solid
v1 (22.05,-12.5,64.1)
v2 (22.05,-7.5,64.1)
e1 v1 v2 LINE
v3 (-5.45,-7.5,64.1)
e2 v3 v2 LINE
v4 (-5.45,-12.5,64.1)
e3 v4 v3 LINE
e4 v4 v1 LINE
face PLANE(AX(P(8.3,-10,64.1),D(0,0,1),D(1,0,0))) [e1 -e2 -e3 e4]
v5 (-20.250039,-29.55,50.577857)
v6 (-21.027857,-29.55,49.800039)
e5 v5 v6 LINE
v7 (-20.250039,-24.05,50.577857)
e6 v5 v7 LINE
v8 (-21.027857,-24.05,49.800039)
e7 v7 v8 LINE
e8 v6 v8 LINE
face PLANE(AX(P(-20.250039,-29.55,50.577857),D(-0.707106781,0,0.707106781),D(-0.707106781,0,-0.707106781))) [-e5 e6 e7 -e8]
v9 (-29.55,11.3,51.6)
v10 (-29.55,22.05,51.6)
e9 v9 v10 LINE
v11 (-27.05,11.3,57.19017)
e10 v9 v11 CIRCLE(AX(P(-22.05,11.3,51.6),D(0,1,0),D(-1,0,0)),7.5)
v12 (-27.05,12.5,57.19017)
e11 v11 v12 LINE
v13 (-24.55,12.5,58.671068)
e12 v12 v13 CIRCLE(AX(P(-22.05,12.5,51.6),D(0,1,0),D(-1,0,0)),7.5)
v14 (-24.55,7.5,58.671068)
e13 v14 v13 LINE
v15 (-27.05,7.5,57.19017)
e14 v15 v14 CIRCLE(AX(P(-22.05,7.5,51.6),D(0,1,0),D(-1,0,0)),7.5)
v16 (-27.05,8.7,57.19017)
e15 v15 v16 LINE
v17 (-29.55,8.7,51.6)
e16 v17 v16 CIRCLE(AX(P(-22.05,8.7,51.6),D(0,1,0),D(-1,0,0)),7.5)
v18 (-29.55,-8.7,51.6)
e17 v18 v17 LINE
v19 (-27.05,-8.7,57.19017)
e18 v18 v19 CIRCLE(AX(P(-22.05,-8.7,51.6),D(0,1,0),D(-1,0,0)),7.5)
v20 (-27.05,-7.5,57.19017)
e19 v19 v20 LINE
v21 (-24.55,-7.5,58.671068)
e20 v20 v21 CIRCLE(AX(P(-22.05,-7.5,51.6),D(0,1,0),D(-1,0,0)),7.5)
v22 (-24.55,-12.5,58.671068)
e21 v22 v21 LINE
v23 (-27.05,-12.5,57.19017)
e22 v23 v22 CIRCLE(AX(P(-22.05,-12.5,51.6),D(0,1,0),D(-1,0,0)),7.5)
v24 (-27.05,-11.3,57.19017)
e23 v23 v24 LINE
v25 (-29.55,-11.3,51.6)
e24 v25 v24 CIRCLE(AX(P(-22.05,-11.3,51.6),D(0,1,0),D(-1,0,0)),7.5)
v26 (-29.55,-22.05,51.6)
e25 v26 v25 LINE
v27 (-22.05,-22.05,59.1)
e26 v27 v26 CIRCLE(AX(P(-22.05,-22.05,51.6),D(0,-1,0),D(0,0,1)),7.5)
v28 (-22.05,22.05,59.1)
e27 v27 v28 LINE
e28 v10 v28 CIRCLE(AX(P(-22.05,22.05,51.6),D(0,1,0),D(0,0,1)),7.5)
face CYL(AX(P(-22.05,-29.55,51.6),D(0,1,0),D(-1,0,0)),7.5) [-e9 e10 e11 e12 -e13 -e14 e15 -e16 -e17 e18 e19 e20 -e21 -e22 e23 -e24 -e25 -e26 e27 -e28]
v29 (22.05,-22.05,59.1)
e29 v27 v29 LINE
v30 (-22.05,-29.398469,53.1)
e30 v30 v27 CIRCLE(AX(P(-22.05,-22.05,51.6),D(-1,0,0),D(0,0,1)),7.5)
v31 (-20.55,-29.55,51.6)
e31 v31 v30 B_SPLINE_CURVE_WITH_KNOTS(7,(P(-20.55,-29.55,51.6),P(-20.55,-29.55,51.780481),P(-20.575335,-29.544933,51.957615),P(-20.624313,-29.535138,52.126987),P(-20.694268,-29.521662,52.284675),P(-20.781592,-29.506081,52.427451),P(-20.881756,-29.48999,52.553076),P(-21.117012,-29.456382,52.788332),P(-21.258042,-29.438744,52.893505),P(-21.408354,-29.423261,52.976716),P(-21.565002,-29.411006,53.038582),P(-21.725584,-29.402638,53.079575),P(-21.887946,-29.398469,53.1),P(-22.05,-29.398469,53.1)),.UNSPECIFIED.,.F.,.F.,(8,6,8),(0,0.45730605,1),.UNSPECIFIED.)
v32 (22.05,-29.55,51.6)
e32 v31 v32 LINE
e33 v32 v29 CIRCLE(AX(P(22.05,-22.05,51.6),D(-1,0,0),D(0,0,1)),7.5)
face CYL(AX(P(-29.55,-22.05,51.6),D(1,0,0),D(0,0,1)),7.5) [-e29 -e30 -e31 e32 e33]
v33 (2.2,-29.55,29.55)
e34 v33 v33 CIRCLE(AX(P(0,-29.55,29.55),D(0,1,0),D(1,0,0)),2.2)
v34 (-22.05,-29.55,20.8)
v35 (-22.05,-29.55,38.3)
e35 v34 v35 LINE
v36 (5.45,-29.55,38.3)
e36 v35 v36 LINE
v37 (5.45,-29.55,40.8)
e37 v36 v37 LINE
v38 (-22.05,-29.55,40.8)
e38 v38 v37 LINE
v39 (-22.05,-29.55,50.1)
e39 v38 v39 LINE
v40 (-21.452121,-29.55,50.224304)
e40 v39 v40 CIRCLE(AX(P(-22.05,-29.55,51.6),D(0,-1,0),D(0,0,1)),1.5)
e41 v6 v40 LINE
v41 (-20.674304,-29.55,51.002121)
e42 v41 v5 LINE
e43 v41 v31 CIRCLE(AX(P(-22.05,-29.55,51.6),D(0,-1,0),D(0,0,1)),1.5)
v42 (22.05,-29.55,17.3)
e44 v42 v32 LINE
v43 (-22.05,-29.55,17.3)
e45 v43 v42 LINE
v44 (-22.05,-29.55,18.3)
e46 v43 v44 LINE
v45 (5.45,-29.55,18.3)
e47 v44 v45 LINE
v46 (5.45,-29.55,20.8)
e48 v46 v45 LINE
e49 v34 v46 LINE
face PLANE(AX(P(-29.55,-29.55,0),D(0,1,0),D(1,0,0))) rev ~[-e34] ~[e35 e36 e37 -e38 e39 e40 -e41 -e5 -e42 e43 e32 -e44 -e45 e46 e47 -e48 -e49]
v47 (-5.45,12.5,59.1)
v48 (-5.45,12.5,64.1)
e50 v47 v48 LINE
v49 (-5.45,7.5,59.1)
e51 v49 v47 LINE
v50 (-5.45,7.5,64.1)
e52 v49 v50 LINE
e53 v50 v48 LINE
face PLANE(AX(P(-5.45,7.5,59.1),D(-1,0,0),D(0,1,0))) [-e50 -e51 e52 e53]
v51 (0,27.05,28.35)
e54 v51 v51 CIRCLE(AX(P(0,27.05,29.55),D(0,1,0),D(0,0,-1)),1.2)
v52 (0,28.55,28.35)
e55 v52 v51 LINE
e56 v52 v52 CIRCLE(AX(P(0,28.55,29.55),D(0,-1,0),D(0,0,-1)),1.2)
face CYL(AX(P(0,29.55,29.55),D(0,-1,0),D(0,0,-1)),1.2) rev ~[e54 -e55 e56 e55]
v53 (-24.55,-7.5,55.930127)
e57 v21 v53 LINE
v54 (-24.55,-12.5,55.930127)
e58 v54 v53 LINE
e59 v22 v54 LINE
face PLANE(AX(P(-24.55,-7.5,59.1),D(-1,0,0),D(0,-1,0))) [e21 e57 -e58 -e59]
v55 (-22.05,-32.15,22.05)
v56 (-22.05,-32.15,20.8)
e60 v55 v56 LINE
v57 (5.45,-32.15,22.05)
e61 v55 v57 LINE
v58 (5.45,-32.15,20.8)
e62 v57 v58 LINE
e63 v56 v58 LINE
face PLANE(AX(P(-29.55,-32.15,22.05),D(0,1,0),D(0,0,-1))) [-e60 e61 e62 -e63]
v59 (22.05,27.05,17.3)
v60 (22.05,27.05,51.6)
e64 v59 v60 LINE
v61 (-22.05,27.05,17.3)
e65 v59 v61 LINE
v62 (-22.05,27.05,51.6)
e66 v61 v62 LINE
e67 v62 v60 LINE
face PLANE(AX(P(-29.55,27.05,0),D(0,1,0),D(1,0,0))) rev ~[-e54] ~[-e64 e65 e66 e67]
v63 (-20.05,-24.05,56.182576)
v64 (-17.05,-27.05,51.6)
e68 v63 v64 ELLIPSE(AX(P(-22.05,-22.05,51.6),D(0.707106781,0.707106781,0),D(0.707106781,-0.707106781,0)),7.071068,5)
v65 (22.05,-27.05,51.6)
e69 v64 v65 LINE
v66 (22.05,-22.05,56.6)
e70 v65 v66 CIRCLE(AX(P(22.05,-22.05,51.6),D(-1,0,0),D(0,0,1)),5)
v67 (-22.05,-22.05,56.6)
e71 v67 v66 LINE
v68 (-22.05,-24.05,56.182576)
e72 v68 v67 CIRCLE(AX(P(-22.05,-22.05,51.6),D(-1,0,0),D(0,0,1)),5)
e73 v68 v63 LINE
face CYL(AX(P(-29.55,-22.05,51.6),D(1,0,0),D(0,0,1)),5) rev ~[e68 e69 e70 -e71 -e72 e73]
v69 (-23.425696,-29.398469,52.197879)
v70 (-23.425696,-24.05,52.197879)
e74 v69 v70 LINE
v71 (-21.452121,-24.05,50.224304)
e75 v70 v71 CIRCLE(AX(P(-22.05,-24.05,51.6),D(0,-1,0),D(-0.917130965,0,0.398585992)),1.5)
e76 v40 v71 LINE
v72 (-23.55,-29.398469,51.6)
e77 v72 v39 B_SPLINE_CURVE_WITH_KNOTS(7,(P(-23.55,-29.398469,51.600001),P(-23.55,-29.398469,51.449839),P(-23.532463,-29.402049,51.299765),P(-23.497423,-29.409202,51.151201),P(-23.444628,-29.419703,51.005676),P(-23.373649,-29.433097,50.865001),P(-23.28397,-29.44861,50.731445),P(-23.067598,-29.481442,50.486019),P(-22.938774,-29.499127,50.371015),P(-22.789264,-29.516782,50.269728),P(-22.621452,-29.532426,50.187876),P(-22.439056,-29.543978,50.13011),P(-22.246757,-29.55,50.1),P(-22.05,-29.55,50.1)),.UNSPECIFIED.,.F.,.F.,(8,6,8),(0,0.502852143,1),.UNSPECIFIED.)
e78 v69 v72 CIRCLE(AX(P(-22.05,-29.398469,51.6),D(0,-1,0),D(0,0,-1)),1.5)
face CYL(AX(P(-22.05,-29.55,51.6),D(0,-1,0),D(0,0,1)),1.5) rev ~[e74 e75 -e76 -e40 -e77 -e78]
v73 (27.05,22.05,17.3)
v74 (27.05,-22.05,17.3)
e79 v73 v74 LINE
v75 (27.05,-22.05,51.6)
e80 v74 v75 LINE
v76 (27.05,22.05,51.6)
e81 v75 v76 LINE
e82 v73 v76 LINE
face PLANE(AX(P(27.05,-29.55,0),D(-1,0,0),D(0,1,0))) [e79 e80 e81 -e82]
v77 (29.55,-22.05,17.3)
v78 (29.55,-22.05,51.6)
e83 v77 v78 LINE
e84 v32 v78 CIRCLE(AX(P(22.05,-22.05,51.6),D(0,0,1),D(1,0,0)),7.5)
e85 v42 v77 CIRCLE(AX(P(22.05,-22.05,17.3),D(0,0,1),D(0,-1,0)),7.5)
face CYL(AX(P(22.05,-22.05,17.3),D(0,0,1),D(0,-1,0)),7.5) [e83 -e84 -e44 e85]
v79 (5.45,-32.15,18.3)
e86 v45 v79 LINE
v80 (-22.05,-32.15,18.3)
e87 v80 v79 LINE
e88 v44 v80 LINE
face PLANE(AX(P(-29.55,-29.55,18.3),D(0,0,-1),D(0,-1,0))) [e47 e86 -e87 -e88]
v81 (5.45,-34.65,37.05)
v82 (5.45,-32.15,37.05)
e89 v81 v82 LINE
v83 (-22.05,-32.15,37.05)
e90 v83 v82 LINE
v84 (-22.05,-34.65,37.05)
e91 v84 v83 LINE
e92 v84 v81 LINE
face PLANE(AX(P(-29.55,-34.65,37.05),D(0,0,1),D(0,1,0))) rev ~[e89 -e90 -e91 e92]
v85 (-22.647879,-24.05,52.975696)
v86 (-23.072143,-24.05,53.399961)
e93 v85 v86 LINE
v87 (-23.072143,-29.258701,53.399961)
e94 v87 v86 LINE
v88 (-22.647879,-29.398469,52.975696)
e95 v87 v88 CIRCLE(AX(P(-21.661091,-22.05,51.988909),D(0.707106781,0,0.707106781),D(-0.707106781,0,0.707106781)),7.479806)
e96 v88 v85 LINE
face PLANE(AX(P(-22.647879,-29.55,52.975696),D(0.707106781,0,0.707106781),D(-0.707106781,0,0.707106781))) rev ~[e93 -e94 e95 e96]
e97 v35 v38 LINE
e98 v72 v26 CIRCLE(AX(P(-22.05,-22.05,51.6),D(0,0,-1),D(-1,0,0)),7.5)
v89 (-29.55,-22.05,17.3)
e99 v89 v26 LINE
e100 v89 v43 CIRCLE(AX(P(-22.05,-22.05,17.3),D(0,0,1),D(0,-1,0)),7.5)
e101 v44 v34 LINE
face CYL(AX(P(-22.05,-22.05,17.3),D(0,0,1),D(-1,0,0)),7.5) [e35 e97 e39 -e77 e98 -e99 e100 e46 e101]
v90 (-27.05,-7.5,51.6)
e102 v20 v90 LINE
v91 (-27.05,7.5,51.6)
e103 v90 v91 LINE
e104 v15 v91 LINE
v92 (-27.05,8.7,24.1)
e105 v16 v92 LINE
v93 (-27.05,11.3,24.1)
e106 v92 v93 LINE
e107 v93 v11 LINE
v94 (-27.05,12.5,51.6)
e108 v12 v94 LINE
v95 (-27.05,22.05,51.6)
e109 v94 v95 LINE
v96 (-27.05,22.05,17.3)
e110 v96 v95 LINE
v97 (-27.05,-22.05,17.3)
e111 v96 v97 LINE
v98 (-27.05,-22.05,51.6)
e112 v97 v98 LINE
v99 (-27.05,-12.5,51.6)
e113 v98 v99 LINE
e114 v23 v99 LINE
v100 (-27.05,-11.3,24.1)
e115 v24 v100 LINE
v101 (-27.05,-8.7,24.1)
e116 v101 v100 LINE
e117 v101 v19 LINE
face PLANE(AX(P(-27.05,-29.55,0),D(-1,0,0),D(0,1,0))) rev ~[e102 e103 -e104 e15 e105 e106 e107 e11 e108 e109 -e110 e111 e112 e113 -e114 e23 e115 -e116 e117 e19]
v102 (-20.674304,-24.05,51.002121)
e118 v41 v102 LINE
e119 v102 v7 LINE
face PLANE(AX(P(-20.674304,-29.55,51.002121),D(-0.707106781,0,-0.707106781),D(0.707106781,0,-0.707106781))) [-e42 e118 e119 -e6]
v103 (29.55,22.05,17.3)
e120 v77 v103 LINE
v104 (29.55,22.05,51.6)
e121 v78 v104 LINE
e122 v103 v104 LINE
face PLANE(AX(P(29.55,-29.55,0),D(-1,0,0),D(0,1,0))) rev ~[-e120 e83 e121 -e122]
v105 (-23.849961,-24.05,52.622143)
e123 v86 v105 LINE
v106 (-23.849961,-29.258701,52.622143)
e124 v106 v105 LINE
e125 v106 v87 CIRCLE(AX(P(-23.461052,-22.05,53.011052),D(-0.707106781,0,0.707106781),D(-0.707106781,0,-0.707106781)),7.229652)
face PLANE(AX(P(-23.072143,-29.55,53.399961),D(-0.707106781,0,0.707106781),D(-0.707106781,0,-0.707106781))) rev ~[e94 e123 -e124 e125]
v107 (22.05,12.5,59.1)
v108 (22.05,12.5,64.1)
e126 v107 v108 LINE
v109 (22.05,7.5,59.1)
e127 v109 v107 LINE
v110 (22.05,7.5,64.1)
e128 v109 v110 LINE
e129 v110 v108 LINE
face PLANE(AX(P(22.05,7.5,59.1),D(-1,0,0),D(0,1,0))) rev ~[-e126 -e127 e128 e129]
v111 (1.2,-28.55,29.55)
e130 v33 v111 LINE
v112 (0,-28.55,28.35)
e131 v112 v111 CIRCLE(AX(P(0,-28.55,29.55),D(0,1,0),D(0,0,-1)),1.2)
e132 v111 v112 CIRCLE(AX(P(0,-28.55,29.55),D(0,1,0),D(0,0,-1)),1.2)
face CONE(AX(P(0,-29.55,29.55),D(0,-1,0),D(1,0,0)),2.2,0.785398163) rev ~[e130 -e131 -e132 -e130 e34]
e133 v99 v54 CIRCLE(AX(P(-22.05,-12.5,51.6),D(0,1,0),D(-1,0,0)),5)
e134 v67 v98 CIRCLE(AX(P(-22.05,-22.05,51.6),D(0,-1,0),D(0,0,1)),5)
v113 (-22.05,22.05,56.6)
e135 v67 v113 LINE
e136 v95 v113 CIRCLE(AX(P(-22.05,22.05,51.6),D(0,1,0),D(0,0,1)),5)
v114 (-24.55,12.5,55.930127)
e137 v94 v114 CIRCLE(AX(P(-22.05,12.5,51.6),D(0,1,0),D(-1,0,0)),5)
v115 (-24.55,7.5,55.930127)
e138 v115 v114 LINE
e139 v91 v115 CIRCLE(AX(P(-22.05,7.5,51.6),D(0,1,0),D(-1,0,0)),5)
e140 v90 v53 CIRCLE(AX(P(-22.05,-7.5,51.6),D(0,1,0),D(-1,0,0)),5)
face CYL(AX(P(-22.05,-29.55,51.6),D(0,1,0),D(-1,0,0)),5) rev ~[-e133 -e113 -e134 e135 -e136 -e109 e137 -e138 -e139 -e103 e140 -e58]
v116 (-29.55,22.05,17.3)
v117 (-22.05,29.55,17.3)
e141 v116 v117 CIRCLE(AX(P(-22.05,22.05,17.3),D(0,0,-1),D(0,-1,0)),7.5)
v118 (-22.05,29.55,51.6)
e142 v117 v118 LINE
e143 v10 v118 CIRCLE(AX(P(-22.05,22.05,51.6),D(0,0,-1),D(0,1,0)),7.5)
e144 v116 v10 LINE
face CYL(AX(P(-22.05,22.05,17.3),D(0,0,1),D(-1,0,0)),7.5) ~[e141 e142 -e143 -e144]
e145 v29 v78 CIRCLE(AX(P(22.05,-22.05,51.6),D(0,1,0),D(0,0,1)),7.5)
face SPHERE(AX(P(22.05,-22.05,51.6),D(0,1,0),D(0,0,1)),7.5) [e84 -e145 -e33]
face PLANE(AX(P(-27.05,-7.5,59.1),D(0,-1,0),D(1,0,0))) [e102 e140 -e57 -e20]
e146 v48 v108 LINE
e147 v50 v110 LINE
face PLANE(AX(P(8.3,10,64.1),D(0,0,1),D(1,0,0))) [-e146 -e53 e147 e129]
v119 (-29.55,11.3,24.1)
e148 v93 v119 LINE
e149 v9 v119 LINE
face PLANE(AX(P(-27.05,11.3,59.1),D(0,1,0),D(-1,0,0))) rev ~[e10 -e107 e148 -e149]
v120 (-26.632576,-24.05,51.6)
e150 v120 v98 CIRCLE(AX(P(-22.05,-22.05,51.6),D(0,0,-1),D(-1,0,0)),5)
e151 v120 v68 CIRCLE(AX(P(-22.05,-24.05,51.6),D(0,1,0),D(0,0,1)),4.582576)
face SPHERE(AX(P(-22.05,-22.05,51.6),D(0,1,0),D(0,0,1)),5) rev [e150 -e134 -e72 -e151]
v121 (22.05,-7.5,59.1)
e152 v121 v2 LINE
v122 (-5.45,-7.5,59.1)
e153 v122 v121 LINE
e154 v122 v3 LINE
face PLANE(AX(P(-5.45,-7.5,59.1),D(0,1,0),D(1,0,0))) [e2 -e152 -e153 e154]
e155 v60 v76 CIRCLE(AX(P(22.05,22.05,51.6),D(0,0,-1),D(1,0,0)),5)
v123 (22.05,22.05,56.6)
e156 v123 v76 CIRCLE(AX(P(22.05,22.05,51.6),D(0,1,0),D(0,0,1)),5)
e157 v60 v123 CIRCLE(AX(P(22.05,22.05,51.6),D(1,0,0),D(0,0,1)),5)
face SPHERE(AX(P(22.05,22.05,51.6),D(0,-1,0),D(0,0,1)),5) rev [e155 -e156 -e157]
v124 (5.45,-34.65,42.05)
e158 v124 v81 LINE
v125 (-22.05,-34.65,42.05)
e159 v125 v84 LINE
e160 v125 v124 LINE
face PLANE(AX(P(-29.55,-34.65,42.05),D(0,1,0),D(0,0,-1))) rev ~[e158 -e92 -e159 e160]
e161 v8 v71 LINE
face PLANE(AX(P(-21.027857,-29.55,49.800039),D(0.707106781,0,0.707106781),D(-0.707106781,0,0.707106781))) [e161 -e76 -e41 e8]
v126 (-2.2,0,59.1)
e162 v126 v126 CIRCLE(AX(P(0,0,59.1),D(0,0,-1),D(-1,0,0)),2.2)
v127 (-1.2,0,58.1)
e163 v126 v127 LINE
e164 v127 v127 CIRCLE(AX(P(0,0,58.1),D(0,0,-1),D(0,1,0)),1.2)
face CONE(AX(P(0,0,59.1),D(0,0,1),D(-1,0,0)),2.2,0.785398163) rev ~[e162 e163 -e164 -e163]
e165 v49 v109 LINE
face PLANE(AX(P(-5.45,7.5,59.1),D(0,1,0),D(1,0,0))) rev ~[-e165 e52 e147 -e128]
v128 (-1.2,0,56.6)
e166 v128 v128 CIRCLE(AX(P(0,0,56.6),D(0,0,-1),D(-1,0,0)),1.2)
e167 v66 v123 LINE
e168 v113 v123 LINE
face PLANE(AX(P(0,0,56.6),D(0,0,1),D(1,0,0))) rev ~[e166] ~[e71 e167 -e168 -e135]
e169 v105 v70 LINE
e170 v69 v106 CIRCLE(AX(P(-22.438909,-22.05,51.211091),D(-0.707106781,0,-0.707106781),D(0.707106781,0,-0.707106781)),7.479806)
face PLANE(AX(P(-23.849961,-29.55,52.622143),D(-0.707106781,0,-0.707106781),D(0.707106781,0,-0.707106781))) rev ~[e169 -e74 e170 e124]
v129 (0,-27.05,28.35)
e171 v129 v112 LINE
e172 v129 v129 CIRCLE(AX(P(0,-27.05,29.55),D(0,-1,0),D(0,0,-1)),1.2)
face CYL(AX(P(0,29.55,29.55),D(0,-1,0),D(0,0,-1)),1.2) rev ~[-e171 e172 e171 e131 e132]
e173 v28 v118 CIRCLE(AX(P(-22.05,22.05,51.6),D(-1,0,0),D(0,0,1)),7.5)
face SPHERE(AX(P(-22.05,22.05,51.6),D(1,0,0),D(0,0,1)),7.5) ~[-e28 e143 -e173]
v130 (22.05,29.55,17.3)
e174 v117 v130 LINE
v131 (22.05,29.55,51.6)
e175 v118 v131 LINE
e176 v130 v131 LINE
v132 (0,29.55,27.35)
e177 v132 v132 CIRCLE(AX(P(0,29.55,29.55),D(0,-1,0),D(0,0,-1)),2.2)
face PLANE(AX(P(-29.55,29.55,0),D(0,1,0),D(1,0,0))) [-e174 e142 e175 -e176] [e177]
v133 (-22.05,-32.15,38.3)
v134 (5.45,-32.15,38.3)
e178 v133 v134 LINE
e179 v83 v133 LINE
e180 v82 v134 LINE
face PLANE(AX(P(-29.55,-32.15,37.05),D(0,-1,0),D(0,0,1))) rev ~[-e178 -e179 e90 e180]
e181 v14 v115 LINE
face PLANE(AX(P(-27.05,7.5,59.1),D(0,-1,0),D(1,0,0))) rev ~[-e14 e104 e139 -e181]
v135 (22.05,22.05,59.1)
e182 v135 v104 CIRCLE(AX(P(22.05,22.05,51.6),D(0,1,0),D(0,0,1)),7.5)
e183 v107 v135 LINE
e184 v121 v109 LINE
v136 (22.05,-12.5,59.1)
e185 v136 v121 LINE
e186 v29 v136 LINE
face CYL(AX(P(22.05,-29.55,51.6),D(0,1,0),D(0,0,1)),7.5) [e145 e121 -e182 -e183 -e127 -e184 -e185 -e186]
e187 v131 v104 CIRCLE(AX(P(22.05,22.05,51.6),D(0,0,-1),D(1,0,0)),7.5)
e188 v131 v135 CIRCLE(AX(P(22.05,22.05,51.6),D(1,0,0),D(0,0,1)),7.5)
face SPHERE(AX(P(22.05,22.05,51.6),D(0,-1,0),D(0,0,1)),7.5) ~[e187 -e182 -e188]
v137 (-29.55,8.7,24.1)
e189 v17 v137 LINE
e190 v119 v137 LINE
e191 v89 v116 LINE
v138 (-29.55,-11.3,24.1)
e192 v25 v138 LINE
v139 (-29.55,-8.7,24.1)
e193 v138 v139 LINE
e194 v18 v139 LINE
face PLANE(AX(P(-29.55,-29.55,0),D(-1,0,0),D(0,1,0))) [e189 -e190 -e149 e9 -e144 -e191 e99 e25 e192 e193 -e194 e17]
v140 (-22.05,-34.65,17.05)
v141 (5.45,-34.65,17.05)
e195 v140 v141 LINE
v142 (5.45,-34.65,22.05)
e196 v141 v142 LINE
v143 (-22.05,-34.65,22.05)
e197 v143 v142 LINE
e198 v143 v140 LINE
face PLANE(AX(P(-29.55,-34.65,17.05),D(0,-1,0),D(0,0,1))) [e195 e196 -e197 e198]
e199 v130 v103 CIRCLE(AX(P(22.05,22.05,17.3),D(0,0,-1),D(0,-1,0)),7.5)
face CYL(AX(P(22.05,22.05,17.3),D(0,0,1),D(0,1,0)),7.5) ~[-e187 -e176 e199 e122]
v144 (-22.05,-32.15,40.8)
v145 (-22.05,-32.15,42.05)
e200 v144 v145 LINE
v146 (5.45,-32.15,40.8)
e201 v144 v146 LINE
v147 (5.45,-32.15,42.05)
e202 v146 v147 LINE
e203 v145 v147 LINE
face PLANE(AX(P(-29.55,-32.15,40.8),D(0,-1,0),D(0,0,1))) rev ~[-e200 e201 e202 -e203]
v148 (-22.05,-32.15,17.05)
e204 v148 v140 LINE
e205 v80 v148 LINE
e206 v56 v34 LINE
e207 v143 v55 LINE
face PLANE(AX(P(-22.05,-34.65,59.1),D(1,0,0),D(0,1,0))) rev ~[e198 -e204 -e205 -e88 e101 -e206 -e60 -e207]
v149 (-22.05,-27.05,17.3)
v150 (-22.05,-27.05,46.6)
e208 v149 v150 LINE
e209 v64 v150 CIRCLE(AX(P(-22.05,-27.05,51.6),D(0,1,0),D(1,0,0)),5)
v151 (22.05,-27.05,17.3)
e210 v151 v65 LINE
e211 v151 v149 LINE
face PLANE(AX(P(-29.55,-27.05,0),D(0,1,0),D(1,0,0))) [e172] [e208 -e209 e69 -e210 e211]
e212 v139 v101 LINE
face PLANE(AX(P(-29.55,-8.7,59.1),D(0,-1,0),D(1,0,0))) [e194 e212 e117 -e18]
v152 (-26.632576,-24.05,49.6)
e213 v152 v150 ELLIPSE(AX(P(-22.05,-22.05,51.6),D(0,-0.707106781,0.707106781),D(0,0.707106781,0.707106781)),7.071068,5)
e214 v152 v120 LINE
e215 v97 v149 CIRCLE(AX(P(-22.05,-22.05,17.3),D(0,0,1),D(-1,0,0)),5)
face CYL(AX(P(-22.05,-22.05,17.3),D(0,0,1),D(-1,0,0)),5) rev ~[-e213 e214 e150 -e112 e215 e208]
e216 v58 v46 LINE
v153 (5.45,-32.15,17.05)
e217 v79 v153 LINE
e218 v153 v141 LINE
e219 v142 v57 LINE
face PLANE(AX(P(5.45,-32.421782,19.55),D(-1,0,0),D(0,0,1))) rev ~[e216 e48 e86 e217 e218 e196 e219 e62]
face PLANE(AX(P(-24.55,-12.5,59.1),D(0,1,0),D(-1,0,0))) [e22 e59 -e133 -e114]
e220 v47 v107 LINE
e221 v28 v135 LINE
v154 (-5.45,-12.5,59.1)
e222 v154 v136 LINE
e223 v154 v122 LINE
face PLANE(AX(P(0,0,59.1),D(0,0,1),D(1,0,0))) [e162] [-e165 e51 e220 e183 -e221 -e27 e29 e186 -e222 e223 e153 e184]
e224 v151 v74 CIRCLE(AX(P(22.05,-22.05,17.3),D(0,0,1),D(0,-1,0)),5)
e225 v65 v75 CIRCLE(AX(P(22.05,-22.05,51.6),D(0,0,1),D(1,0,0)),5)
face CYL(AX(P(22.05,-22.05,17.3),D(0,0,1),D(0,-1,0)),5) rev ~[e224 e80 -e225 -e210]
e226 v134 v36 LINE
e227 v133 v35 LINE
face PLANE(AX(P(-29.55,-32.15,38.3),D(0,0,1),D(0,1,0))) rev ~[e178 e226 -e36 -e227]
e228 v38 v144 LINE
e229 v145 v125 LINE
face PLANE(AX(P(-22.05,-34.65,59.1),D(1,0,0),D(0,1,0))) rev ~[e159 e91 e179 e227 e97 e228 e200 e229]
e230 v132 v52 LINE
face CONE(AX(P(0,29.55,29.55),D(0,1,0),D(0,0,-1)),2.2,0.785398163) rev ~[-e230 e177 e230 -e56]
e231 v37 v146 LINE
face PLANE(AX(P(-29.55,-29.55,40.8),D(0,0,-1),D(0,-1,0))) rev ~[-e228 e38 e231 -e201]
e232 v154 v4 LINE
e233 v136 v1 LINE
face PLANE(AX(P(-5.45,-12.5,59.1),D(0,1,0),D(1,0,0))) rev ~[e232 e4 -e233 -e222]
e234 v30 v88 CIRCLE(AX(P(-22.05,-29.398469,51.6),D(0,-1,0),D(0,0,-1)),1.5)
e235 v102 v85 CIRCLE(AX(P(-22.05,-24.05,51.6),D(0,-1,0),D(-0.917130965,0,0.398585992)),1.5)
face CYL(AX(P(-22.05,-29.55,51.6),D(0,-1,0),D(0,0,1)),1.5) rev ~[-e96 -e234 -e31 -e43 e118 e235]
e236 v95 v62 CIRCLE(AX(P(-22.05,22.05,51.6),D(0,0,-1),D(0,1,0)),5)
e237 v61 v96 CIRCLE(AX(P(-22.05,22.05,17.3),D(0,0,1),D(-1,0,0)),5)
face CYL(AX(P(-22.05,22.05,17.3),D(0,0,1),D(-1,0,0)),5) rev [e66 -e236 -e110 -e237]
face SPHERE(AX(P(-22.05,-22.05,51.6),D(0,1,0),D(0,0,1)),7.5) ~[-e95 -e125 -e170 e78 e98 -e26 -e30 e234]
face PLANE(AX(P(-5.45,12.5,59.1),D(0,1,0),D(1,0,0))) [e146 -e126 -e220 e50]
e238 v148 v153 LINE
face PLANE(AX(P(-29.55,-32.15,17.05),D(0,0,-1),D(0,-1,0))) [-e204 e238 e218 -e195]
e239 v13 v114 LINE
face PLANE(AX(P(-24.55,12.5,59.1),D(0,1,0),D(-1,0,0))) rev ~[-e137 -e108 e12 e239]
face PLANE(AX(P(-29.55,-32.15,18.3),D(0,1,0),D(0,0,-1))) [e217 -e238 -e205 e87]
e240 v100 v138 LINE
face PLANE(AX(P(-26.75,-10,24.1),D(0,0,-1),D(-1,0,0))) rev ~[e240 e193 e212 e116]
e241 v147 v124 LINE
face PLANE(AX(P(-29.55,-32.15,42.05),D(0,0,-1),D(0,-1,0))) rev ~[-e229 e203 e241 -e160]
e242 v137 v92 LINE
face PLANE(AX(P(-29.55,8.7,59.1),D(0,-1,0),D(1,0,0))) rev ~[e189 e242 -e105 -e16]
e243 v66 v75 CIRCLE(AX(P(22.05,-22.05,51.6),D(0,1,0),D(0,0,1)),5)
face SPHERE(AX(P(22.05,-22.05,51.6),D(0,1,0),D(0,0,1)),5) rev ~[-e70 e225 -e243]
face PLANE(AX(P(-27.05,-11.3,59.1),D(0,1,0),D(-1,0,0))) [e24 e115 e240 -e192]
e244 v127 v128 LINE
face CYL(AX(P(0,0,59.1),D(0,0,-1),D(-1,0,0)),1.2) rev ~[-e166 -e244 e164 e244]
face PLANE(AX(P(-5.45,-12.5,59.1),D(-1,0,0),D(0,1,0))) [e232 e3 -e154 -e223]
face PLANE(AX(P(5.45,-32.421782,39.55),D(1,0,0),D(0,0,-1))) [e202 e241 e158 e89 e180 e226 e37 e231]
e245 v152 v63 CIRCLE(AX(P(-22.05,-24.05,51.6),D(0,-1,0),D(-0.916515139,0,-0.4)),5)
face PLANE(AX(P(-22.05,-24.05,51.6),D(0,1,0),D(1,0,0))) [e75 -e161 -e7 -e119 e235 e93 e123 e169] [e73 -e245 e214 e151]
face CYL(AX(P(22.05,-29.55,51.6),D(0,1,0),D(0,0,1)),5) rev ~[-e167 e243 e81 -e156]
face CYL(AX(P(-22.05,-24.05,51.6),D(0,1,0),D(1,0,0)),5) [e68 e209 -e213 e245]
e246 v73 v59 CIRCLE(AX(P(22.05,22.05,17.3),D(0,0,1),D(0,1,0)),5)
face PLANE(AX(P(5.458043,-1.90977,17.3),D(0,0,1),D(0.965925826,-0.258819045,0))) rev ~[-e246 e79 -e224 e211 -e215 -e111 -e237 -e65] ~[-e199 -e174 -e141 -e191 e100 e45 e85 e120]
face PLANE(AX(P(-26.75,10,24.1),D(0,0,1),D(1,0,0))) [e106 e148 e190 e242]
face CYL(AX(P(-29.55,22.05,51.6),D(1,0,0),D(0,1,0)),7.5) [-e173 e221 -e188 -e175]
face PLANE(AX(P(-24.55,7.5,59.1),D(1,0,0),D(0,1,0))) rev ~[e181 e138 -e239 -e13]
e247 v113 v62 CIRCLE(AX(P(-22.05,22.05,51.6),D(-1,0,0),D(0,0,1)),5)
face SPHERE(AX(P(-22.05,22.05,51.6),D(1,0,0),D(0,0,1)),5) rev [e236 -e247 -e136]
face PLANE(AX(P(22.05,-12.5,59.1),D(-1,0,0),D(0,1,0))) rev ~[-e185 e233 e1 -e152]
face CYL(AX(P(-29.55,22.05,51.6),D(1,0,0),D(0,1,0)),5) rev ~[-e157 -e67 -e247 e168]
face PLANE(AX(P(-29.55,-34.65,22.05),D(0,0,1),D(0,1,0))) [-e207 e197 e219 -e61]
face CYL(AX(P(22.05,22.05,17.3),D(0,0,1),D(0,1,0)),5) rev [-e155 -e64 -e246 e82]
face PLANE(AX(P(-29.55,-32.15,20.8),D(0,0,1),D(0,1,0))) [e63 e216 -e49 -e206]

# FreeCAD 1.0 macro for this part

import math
import FreeCAD as App
import Part
import Sketcher
Q = App.Units.Quantity


def edges_at(feature, points):
    """Names of the edges that pass closest to the given points."""
    edges = feature.Shape.Edges
    near = lambda p: min(range(len(edges)), key=lambda i: edges[i].distToShape(Part.Vertex(*p))[0])
    return sorted({f"Edge{near(p) + 1}" for p in points})


def faces_at(feature, points):
    """Names of the faces that lie closest to the given points."""
    faces = feature.Shape.Faces
    near = lambda p: min(range(len(faces)), key=lambda i: faces[i].distToShape(Part.Vertex(*p))[0])
    return sorted({f"Face{near(p) + 1}" for p in points})


def add_polygon(sketch, points):
    """Adds a closed chain of lines whose ends are joined by coincident constraints."""
    first, n = sketch.GeometryCount, len(points)
    for a, b in zip(points, points[1:] + points[:1]):
        sketch.addGeometry(Part.LineSegment(App.Vector(*a, 0), App.Vector(*b, 0)), False)
    for i in range(n):
        sketch.addConstraint(Sketcher.Constraint("Coincident", first + i, 2, first + (i + 1) % n, 1))

doc = App.newDocument("Part")
params = doc.addObject("Spreadsheet::Sheet", "Params")
for row, (alias, value) in enumerate([
    ("sketch1_width", "59.1 mm"),
    ("pad1_length", "59.1 mm"),
    ("fillet_radius", "7.5 mm"),
    ("thickness_wall", "2.5 mm"),
    ("sketch3_height", "5 mm"),
    ("sketch3_width", "2.5 mm"),
    ("sketch3_height2", "2.6 mm"),
    ("pocket2_length", "35 mm"),
    ("sketch4_diameter", "10 mm"),
    ("pad2_length", "3 mm"),
    ("sketch5_diameter", "3 mm"),
    ("pocket3_length", "10 mm"),
    ("sketch6_radius", "1.5 mm"),
    ("sketch6_length", "0.6 mm"),
    ("sketch6_length2", "1.1 mm"),
    ("pocket4_length", "5.5 mm"),
    ("sketch7_radius", "1.5 mm"),
    ("sketch7_length", "0.6 mm"),
    ("sketch7_length2", "1.1 mm"),
    ("sketch8_diameter", "2.4 mm"),
    ("hole_diameter", "2.4 mm"),
    ("hole_csink_diameter", "4.4 mm"),
    ("sketch9_diameter", "2.4 mm"),
    ("hole2_diameter", "2.4 mm"),
    ("hole2_csink_diameter", "4.4 mm"),
    ("sketch10_diameter", "2.4 mm"),
    ("hole3_diameter", "2.4 mm"),
    ("hole3_csink_diameter", "4.4 mm"),
    ("sketch11_height", "5 mm"),
    ("sketch11_width", "2.6 mm"),
    ("sketch11_width2", "2.5 mm"),
    ("pad3_length", "35 mm"),
    ("sketch12_width", "7.5 mm"),
    ("sketch12_height", "5.1 mm"),
    ("sketch13_height", "5 mm"),
    ("sketch13_width", "27.5 mm"),
    ("pad4_length", "5 mm"),
], start=1):
    params.set(f"A{row}", alias)
    params.set(f"B{row}", "=" + value)
    params.setAlias(f"B{row}", alias)

body = doc.addObject("PartDesign::Body", "Body")

# Sketch on XY plane
sketch1 = body.newObject("Sketcher::SketchObject", "Sketch")
sketch1.AttachmentSupport = (doc.getObject("XY_Plane"), [""])
sketch1.MapMode = "FlatFace"
add_polygon(sketch1, [(-30, 30), (-30, -30), (30, -30), (30, 30)])  # lines 0-3
sketch1.addConstraint(Sketcher.Constraint("Vertical", 0))
sketch1.addConstraint(Sketcher.Constraint("Horizontal", 1))
sketch1.addConstraint(Sketcher.Constraint("Vertical", 2))
sketch1.addConstraint(Sketcher.Constraint("Horizontal", 3))
sketch1.addConstraint(Sketcher.Constraint("Symmetric", 0, 2, 2, 2, -1, 1))
sketch1.addConstraint(Sketcher.Constraint("Equal", 3, 0))
sketch1.addConstraint(Sketcher.Constraint("DistanceX", 1, 1, 1, 2, Q("59.1 mm")))
sketch1.setExpression("Constraints[10]", "Params.sketch1_width")
pad1 = body.newObject("PartDesign::Pad", "Pad")
pad1.Profile = sketch1
pad1.setExpression("Length", "Params.pad1_length")

# Sketch on XY plane
sketch2 = body.newObject("Sketcher::SketchObject", "Sketch001")
sketch2.AttachmentSupport = (doc.getObject("XY_Plane"), [""])
sketch2.MapMode = "FlatFace"
sketch2.AttachmentOffset = App.Placement(App.Vector(0, 0, 17.3), App.Rotation())
add_polygon(sketch2, [(-39, 59), (-63, -32), (49, -63), (74, 29)])  # lines 0-3
sketch2.addConstraint(Sketcher.Constraint("Perpendicular", 0, 1))
sketch2.addConstraint(Sketcher.Constraint("Perpendicular", 1, 2))
sketch2.addConstraint(Sketcher.Constraint("Perpendicular", 2, 3))
sketch2.addConstraint(Sketcher.Constraint("Angle", 0, Q("-105 deg")))
sketch2.addConstraint(Sketcher.Constraint("DistanceY", 1, 2, -1, 1, Q("62.574599 mm")))
sketch2.addConstraint(Sketcher.Constraint("Distance", 0, Q("94.43183 mm")))
sketch2.addConstraint(Sketcher.Constraint("Distance", 1, Q("116.357412 mm")))
sketch2.addConstraint(Sketcher.Constraint("DistanceX", 0, 2, -1, 1, Q("62.95865 mm")))
pocket1 = body.newObject("PartDesign::Pocket", "Pocket")
pocket1.Profile = sketch2
pocket1.Type = "ThroughAll"
doc.recompute()

fillet = body.newObject("PartDesign::Fillet", "Fillet")
fillet.Base = (pocket1, edges_at(pocket1, [
    (29.55, 0, 59.1),
    (0, 29.55, 59.1),
    (-29.55, 0, 59.1),
    (0, -29.55, 59.1),
    (-29.55, 29.55, 38.2),
    (29.55, 29.55, 38.2),
    (29.55, -29.55, 38.2),
    (-29.55, -29.55, 38.2),
]))
fillet.setExpression("Radius", "Params.fillet_radius")
doc.recompute()

thickness = body.newObject("PartDesign::Thickness", "Thickness")
thickness.Base = (fillet, faces_at(fillet, [(0, 0, 17.3)]))
thickness.setExpression("Value", "Params.thickness_wall")
thickness.Reversed = True
thickness.Join = "Intersection"

# Sketch on XY plane
sketch3 = body.newObject("Sketcher::SketchObject", "Sketch002")
sketch3.AttachmentSupport = (doc.getObject("XY_Plane"), [""])
sketch3.MapMode = "FlatFace"
sketch3.AttachmentOffset = App.Placement(App.Vector(0, 0, 59.1), App.Rotation())
add_polygon(sketch3, [(-27.1, -8.7), (-29.6, -8.7), (-29.6, -11.3), (-27.1, -11.3), (-27.1, -12.5), (-24.6, -12.5), (-24.6, -7.5), (-27.1, -7.5)])  # lines 0-7
add_polygon(sketch3, [(-29.6, 11.3), (-29.6, 8.7), (-27.1, 8.7), (-27.1, 7.5), (-24.6, 7.5), (-24.6, 12.5), (-27.1, 12.5), (-27.1, 11.3)])  # lines 8-15
sketch3.addConstraint(Sketcher.Constraint("Horizontal", 0))
sketch3.addConstraint(Sketcher.Constraint("Vertical", 1))
sketch3.addConstraint(Sketcher.Constraint("Horizontal", 2))
sketch3.addConstraint(Sketcher.Constraint("Vertical", 3))
sketch3.addConstraint(Sketcher.Constraint("Horizontal", 4))
sketch3.addConstraint(Sketcher.Constraint("Vertical", 5))
sketch3.addConstraint(Sketcher.Constraint("Horizontal", 6))
sketch3.addConstraint(Sketcher.Constraint("Vertical", 7))
sketch3.addConstraint(Sketcher.Constraint("Vertical", 8))
sketch3.addConstraint(Sketcher.Constraint("Horizontal", 9))
sketch3.addConstraint(Sketcher.Constraint("Vertical", 10))
sketch3.addConstraint(Sketcher.Constraint("Horizontal", 11))
sketch3.addConstraint(Sketcher.Constraint("Vertical", 12))
sketch3.addConstraint(Sketcher.Constraint("Horizontal", 13))
sketch3.addConstraint(Sketcher.Constraint("Vertical", 14))
sketch3.addConstraint(Sketcher.Constraint("Horizontal", 15))
sketch3.addConstraint(Sketcher.Constraint("Symmetric", 0, 2, 8, 2, -1))
sketch3.addConstraint(Sketcher.Constraint("Symmetric", 6, 2, 10, 2, -1))
sketch3.addConstraint(Sketcher.Constraint("Symmetric", 4, 2, 12, 2, -1))
sketch3.addConstraint(Sketcher.Constraint("Symmetric", 2, 2, 14, 2, -1))
sketch3.addConstraint(Sketcher.Constraint("Vertical", 3, 2, 6, 2))
sketch3.addConstraint(Sketcher.Constraint("Equal", 2, 4))
sketch3.addConstraint(Sketcher.Constraint("Equal", 3, 7))
sketch3.addConstraint(Sketcher.Constraint("DistanceY", 5, 1, 5, 2, Q("5 mm")))
sketch3.addConstraint(Sketcher.Constraint("DistanceX", 0, 2, 0, 1, Q("2.5 mm")))
sketch3.addConstraint(Sketcher.Constraint("DistanceY", 1, 2, 1, 1, Q("2.6 mm")))
sketch3.addConstraint(Sketcher.Constraint("DistanceY", 1, 2, 8, 2, Q("20 mm")))
sketch3.addConstraint(Sketcher.Constraint("DistanceX", 0, 2, -1, 1, Q("29.55 mm")))
sketch3.setExpression("Constraints[39]", "Params.sketch3_height")
sketch3.setExpression("Constraints[40]", "Params.sketch3_width")
sketch3.setExpression("Constraints[41]", "Params.sketch3_height2")
pocket2 = body.newObject("PartDesign::Pocket", "Pocket001")
pocket2.Profile = sketch3
pocket2.setExpression("Length", "Params.pocket2_length")

# Sketch on XZ plane
sketch4 = body.newObject("Sketcher::SketchObject", "Sketch003")
sketch4.AttachmentSupport = (doc.getObject("XZ_Plane"), [""])
sketch4.MapMode = "FlatFace"
sketch4.AttachmentOffset = App.Placement(App.Vector(0, 0, 24.05), App.Rotation())
sketch4.addGeometry(Part.Circle(App.Vector(-22, 52, 0), App.Vector(0, 0, 1), 5), False)
sketch4.addConstraint(Sketcher.Constraint("Diameter", 0, Q("10 mm")))
sketch4.addConstraint(Sketcher.Constraint("DistanceY", -1, 1, 0, 3, Q("51.6 mm")))
sketch4.addConstraint(Sketcher.Constraint("DistanceX", 0, 3, -1, 1, Q("22.05 mm")))
sketch4.setExpression("Constraints[0]", "Params.sketch4_diameter")
pad2 = body.newObject("PartDesign::Pad", "Pad001")
pad2.Profile = sketch4
pad2.setExpression("Length", "Params.pad2_length")

# Sketch on XZ plane
sketch5 = body.newObject("Sketcher::SketchObject", "Sketch004")
sketch5.AttachmentSupport = (doc.getObject("XZ_Plane"), [""])
sketch5.MapMode = "FlatFace"
sketch5.AttachmentOffset = App.Placement(App.Vector(0, 0, 29.55), App.Rotation())
sketch5.addGeometry(Part.Circle(App.Vector(-22.1, 51.6, 0), App.Vector(0, 0, 1), 1.5), False)
sketch5.addConstraint(Sketcher.Constraint("Diameter", 0, Q("3 mm")))
sketch5.addConstraint(Sketcher.Constraint("DistanceY", -1, 1, 0, 3, Q("51.6 mm")))
sketch5.addConstraint(Sketcher.Constraint("DistanceX", 0, 3, -1, 1, Q("22.05 mm")))
sketch5.setExpression("Constraints[0]", "Params.sketch5_diameter")
pocket3 = body.newObject("PartDesign::Pocket", "Pocket002")
pocket3.Profile = sketch5
pocket3.setExpression("Length", "Params.pocket3_length")

# Sketch on XZ plane
sketch6 = body.newObject("Sketcher::SketchObject", "Sketch005")
sketch6.AttachmentSupport = (doc.getObject("XZ_Plane"), [""])
sketch6.MapMode = "FlatFace"
sketch6.AttachmentOffset = App.Placement(App.Vector(0, 0, 29.55), App.Rotation())
sketch6.addGeometry(Part.LineSegment(App.Vector(-22.6, 53, 0), App.Vector(-23.1, 53.4, 0)), False)
sketch6.addGeometry(Part.LineSegment(App.Vector(-23.1, 53.4, 0), App.Vector(-23.8, 52.6, 0)), False)
sketch6.addGeometry(Part.LineSegment(App.Vector(-23.8, 52.6, 0), App.Vector(-23.4, 52.2, 0)), False)
sketch6.addGeometry(Part.ArcOfCircle(Part.Circle(App.Vector(-22.1, 51.6, 0), App.Vector(0, 0, 1), 1.5), math.radians(113), math.radians(157)), False)
sketch6.addConstraint(Sketcher.Constraint("Coincident", 0, 2, 1, 1))
sketch6.addConstraint(Sketcher.Constraint("Coincident", 1, 2, 2, 1))
sketch6.addConstraint(Sketcher.Constraint("Coincident", 2, 2, 3, 2))
sketch6.addConstraint(Sketcher.Constraint("Coincident", 3, 1, 0, 1))
sketch6.addConstraint(Sketcher.Constraint("Perpendicular", 0, 1))
sketch6.addConstraint(Sketcher.Constraint("Perpendicular", 1, 2))
sketch6.addConstraint(Sketcher.Constraint("Equal", 0, 2))
sketch6.addConstraint(Sketcher.Constraint("Radius", 3, Q("1.5 mm")))
sketch6.addConstraint(Sketcher.Constraint("Angle", 0, Q("135 deg")))
sketch6.addConstraint(Sketcher.Constraint("Distance", 0, Q("0.6 mm")))
sketch6.addConstraint(Sketcher.Constraint("Distance", 1, Q("1.1 mm")))
sketch6.addConstraint(Sketcher.Constraint("DistanceY", -1, 1, 3, 3, Q("51.6 mm")))
sketch6.addConstraint(Sketcher.Constraint("DistanceX", 3, 3, -1, 1, Q("22.05 mm")))
sketch6.setExpression("Constraints[7]", "Params.sketch6_radius")
sketch6.setExpression("Constraints[9]", "Params.sketch6_length")
sketch6.setExpression("Constraints[10]", "Params.sketch6_length2")
pocket4 = body.newObject("PartDesign::Pocket", "Pocket003")
pocket4.Profile = sketch6
pocket4.setExpression("Length", "Params.pocket4_length")

# Sketch on XZ plane
sketch7 = body.newObject("Sketcher::SketchObject", "Sketch006")
sketch7.AttachmentSupport = (doc.getObject("XZ_Plane"), [""])
sketch7.MapMode = "FlatFace"
sketch7.AttachmentOffset = App.Placement(App.Vector(0, 0, 29.55), App.Rotation())
sketch7.addGeometry(Part.LineSegment(App.Vector(-21.5, 50.2, 0), App.Vector(-21, 49.8, 0)), False)
sketch7.addGeometry(Part.LineSegment(App.Vector(-21, 49.8, 0), App.Vector(-20.3, 50.6, 0)), False)
sketch7.addGeometry(Part.LineSegment(App.Vector(-20.3, 50.6, 0), App.Vector(-20.7, 51, 0)), False)
sketch7.addGeometry(Part.ArcOfCircle(Part.Circle(App.Vector(-22, 51.6, 0), App.Vector(0, 0, 1), 1.5), math.radians(-67), math.radians(-23)), False)
sketch7.addConstraint(Sketcher.Constraint("Coincident", 0, 2, 1, 1))
sketch7.addConstraint(Sketcher.Constraint("Coincident", 1, 2, 2, 1))
sketch7.addConstraint(Sketcher.Constraint("Coincident", 2, 2, 3, 2))
sketch7.addConstraint(Sketcher.Constraint("Coincident", 3, 1, 0, 1))
sketch7.addConstraint(Sketcher.Constraint("Perpendicular", 0, 1))
sketch7.addConstraint(Sketcher.Constraint("Perpendicular", 1, 2))
sketch7.addConstraint(Sketcher.Constraint("Equal", 0, 2))
sketch7.addConstraint(Sketcher.Constraint("Radius", 3, Q("1.5 mm")))
sketch7.addConstraint(Sketcher.Constraint("Angle", 0, Q("-45 deg")))
sketch7.addConstraint(Sketcher.Constraint("Distance", 0, Q("0.6 mm")))
sketch7.addConstraint(Sketcher.Constraint("Distance", 1, Q("1.1 mm")))
sketch7.addConstraint(Sketcher.Constraint("DistanceY", -1, 1, 3, 3, Q("51.6 mm")))
sketch7.addConstraint(Sketcher.Constraint("DistanceX", 3, 3, -1, 1, Q("22.05 mm")))
sketch7.setExpression("Constraints[7]", "Params.sketch7_radius")
sketch7.setExpression("Constraints[9]", "Params.sketch7_length")
sketch7.setExpression("Constraints[10]", "Params.sketch7_length2")
pocket5 = body.newObject("PartDesign::Pocket", "Pocket004")
pocket5.Profile = sketch7
pocket5.Type = "UpToFirst"

# Sketch on XZ plane
sketch8 = body.newObject("Sketcher::SketchObject", "Sketch007")
sketch8.AttachmentSupport = (doc.getObject("XZ_Plane"), [""])
sketch8.MapMode = "FlatFace"
sketch8.AttachmentOffset = App.Placement(App.Vector(0, 0, -29.55), App.Rotation())
sketch8.addGeometry(Part.Circle(App.Vector(0, 29.6, 0), App.Vector(0, 0, 1), 1.2), False)
sketch8.addConstraint(Sketcher.Constraint("PointOnObject", 0, 3, -2))
sketch8.addConstraint(Sketcher.Constraint("Diameter", 0, Q("2.4 mm")))
sketch8.addConstraint(Sketcher.Constraint("DistanceY", -1, 1, 0, 3, Q("29.55 mm")))
sketch8.setExpression("Constraints[1]", "Params.sketch8_diameter")
doc.recompute()
hole = body.newObject("PartDesign::Hole", "Hole")
hole.Profile = sketch8
hole.ThreadType = "None"
hole.setExpression("Diameter", "Params.hole_diameter")
hole.DepthType = "ThroughAll"
hole.HoleCutType = "Countersink"
hole.setExpression("HoleCutDiameter", "Params.hole_csink_diameter")
hole.HoleCutCountersinkAngle = 90
hole.Reversed = True

# Sketch on XY plane
sketch9 = body.newObject("Sketcher::SketchObject", "Sketch008")
sketch9.AttachmentSupport = (doc.getObject("XY_Plane"), [""])
sketch9.MapMode = "FlatFace"
sketch9.AttachmentOffset = App.Placement(App.Vector(0, 0, 59.1), App.Rotation())
sketch9.addGeometry(Part.Circle(App.Vector(0, 0, 0), App.Vector(0, 0, 1), 1.2), False)
sketch9.addConstraint(Sketcher.Constraint("Coincident", 0, 3, -1, 1))
sketch9.addConstraint(Sketcher.Constraint("Diameter", 0, Q("2.4 mm")))
sketch9.setExpression("Constraints[1]", "Params.sketch9_diameter")
doc.recompute()
hole2 = body.newObject("PartDesign::Hole", "Hole001")
hole2.Profile = sketch9
hole2.ThreadType = "None"
hole2.setExpression("Diameter", "Params.hole2_diameter")
hole2.DepthType = "ThroughAll"
hole2.HoleCutType = "Countersink"
hole2.setExpression("HoleCutDiameter", "Params.hole2_csink_diameter")
hole2.HoleCutCountersinkAngle = 90

# Sketch on XZ plane
sketch10 = body.newObject("Sketcher::SketchObject", "Sketch009")
sketch10.AttachmentSupport = (doc.getObject("XZ_Plane"), [""])
sketch10.MapMode = "FlatFace"
sketch10.AttachmentOffset = App.Placement(App.Vector(0, 0, 29.55), App.Rotation())
sketch10.addGeometry(Part.Circle(App.Vector(0, 29.6, 0), App.Vector(0, 0, 1), 1.2), False)
sketch10.addConstraint(Sketcher.Constraint("PointOnObject", 0, 3, -2))
sketch10.addConstraint(Sketcher.Constraint("Diameter", 0, Q("2.4 mm")))
sketch10.addConstraint(Sketcher.Constraint("DistanceY", -1, 1, 0, 3, Q("29.55 mm")))
sketch10.setExpression("Constraints[1]", "Params.sketch10_diameter")
doc.recompute()
hole3 = body.newObject("PartDesign::Hole", "Hole002")
hole3.Profile = sketch10
hole3.ThreadType = "None"
hole3.setExpression("Diameter", "Params.hole3_diameter")
hole3.DepthType = "ThroughAll"
hole3.HoleCutType = "Countersink"
hole3.setExpression("HoleCutDiameter", "Params.hole3_csink_diameter")
hole3.HoleCutCountersinkAngle = 90

# Sketch on YZ plane
sketch11 = body.newObject("Sketcher::SketchObject", "Sketch010")
sketch11.AttachmentSupport = (doc.getObject("YZ_Plane"), [""])
sketch11.MapMode = "FlatFace"
sketch11.AttachmentOffset = App.Placement(App.Vector(0, 0, -29.55), App.Rotation())
add_polygon(sketch11, [(-32.1, 18.3), (-29.6, 18.3), (-29.6, 20.8), (-32.1, 20.8), (-32.1, 22.1), (-34.6, 22.1), (-34.6, 17.1), (-32.1, 17.1)])  # lines 0-7
add_polygon(sketch11, [(-29.6, 38.3), (-29.6, 40.8), (-32.1, 40.8), (-32.1, 42), (-34.6, 42), (-34.6, 37), (-32.1, 37), (-32.1, 38.3)])  # lines 8-15
sketch11.addConstraint(Sketcher.Constraint("Horizontal", 0))
sketch11.addConstraint(Sketcher.Constraint("Vertical", 1))
sketch11.addConstraint(Sketcher.Constraint("Horizontal", 2))
sketch11.addConstraint(Sketcher.Constraint("Vertical", 3))
sketch11.addConstraint(Sketcher.Constraint("Horizontal", 4))
sketch11.addConstraint(Sketcher.Constraint("Vertical", 5))
sketch11.addConstraint(Sketcher.Constraint("Horizontal", 6))
sketch11.addConstraint(Sketcher.Constraint("Vertical", 7))
sketch11.addConstraint(Sketcher.Constraint("Vertical", 8))
sketch11.addConstraint(Sketcher.Constraint("Horizontal", 9))
sketch11.addConstraint(Sketcher.Constraint("Vertical", 10))
sketch11.addConstraint(Sketcher.Constraint("Horizontal", 11))
sketch11.addConstraint(Sketcher.Constraint("Vertical", 12))
sketch11.addConstraint(Sketcher.Constraint("Horizontal", 13))
sketch11.addConstraint(Sketcher.Constraint("Vertical", 14))
sketch11.addConstraint(Sketcher.Constraint("Horizontal", 15))
sketch11.addConstraint(Sketcher.Constraint("Vertical", 3, 2, 6, 2))
sketch11.addConstraint(Sketcher.Constraint("Vertical", 1, 2, 8, 2))
sketch11.addConstraint(Sketcher.Constraint("Vertical", 7, 2, 9, 2))
sketch11.addConstraint(Sketcher.Constraint("Vertical", 5, 2, 11, 2))
sketch11.addConstraint(Sketcher.Constraint("Vertical", 10, 2, 13, 2))
sketch11.addConstraint(Sketcher.Constraint("Equal", 13, 1))
sketch11.addConstraint(Sketcher.Constraint("Equal", 3, 7))
sketch11.addConstraint(Sketcher.Constraint("Equal", 1, 8))
sketch11.addConstraint(Sketcher.Constraint("Equal", 7, 10))
sketch11.addConstraint(Sketcher.Constraint("Equal", 5, 12))
sketch11.addConstraint(Sketcher.Constraint("DistanceY", 5, 2, 5, 1, Q("5 mm")))
sketch11.addConstraint(Sketcher.Constraint("DistanceX", 0, 1, 0, 2, Q("2.6 mm")))
sketch11.addConstraint(Sketcher.Constraint("DistanceX", 4, 2, 4, 1, Q("2.5 mm")))
sketch11.addConstraint(Sketcher.Constraint("DistanceY", 1, 2, 8, 2, Q("20 mm")))
sketch11.addConstraint(Sketcher.Constraint("DistanceY", -1, 1, 0, 2, Q("18.3 mm")))
sketch11.addConstraint(Sketcher.Constraint("DistanceX", 0, 2, -1, 1, Q("29.55 mm")))
sketch11.setExpression("Constraints[42]", "Params.sketch11_height")
sketch11.setExpression("Constraints[43]", "Params.sketch11_width")
sketch11.setExpression("Constraints[44]", "Params.sketch11_width2")
pad3 = body.newObject("PartDesign::Pad", "Pad002")
pad3.Profile = sketch11
pad3.setExpression("Length", "Params.pad3_length")

# Sketch on XY plane
sketch12 = body.newObject("Sketcher::SketchObject", "Sketch011")
sketch12.AttachmentSupport = (doc.getObject("XY_Plane"), [""])
sketch12.MapMode = "FlatFace"
sketch12.AttachmentOffset = App.Placement(App.Vector(0, 0, 59.1), App.Rotation())
add_polygon(sketch12, [(-30, -30), (-30, -35), (-22, -35), (-22, -30)])  # lines 0-3
sketch12.addConstraint(Sketcher.Constraint("Vertical", 0))
sketch12.addConstraint(Sketcher.Constraint("Horizontal", 1))
sketch12.addConstraint(Sketcher.Constraint("Vertical", 2))
sketch12.addConstraint(Sketcher.Constraint("Horizontal", 3))
sketch12.addConstraint(Sketcher.Constraint("DistanceX", 1, 1, 1, 2, Q("7.5 mm")))
sketch12.addConstraint(Sketcher.Constraint("DistanceY", 0, 2, 0, 1, Q("5.1 mm")))
sketch12.addConstraint(Sketcher.Constraint("DistanceX", 0, 2, -1, 1, Q("29.55 mm")))
sketch12.addConstraint(Sketcher.Constraint("DistanceY", 0, 2, -1, 1, Q("34.65 mm")))
sketch12.setExpression("Constraints[8]", "Params.sketch12_width")
sketch12.setExpression("Constraints[9]", "Params.sketch12_height")
pocket6 = body.newObject("PartDesign::Pocket", "Pocket005")
pocket6.Profile = sketch12
pocket6.Type = "ThroughAll"

# Sketch on XY plane
sketch13 = body.newObject("Sketcher::SketchObject", "Sketch012")
sketch13.AttachmentSupport = (doc.getObject("XY_Plane"), [""])
sketch13.MapMode = "FlatFace"
sketch13.AttachmentOffset = App.Placement(App.Vector(0, 0, 59.1), App.Rotation())
add_polygon(sketch13, [(-5, -8), (-5, -12), (22, -12), (22, -8)])  # lines 0-3
add_polygon(sketch13, [(-5, 12), (-5, 8), (22, 8), (22, 12)])  # lines 4-7
sketch13.addConstraint(Sketcher.Constraint("Vertical", 0))
sketch13.addConstraint(Sketcher.Constraint("Horizontal", 1))
sketch13.addConstraint(Sketcher.Constraint("Vertical", 2))
sketch13.addConstraint(Sketcher.Constraint("Horizontal", 3))
sketch13.addConstraint(Sketcher.Constraint("Vertical", 4))
sketch13.addConstraint(Sketcher.Constraint("Horizontal", 5))
sketch13.addConstraint(Sketcher.Constraint("Vertical", 6))
sketch13.addConstraint(Sketcher.Constraint("Horizontal", 7))
sketch13.addConstraint(Sketcher.Constraint("Symmetric", 3, 2, 4, 2, -1))
sketch13.addConstraint(Sketcher.Constraint("Symmetric", 1, 2, 6, 2, -1))
sketch13.addConstraint(Sketcher.Constraint("DistanceY", 0, 2, 0, 1, Q("5 mm")))
sketch13.addConstraint(Sketcher.Constraint("DistanceX", 1, 1, 1, 2, Q("27.5 mm")))
sketch13.addConstraint(Sketcher.Constraint("DistanceY", 3, 2, 4, 2, Q("15 mm")))
sketch13.addConstraint(Sketcher.Constraint("DistanceX", 0, 2, -1, 1, Q("5.45 mm")))
sketch13.setExpression("Constraints[18]", "Params.sketch13_height")
sketch13.setExpression("Constraints[19]", "Params.sketch13_width")
pad4 = body.newObject("PartDesign::Pad", "Pad003")
pad4.Profile = sketch13
pad4.setExpression("Length", "Params.pad4_length")

doc.recompute()
